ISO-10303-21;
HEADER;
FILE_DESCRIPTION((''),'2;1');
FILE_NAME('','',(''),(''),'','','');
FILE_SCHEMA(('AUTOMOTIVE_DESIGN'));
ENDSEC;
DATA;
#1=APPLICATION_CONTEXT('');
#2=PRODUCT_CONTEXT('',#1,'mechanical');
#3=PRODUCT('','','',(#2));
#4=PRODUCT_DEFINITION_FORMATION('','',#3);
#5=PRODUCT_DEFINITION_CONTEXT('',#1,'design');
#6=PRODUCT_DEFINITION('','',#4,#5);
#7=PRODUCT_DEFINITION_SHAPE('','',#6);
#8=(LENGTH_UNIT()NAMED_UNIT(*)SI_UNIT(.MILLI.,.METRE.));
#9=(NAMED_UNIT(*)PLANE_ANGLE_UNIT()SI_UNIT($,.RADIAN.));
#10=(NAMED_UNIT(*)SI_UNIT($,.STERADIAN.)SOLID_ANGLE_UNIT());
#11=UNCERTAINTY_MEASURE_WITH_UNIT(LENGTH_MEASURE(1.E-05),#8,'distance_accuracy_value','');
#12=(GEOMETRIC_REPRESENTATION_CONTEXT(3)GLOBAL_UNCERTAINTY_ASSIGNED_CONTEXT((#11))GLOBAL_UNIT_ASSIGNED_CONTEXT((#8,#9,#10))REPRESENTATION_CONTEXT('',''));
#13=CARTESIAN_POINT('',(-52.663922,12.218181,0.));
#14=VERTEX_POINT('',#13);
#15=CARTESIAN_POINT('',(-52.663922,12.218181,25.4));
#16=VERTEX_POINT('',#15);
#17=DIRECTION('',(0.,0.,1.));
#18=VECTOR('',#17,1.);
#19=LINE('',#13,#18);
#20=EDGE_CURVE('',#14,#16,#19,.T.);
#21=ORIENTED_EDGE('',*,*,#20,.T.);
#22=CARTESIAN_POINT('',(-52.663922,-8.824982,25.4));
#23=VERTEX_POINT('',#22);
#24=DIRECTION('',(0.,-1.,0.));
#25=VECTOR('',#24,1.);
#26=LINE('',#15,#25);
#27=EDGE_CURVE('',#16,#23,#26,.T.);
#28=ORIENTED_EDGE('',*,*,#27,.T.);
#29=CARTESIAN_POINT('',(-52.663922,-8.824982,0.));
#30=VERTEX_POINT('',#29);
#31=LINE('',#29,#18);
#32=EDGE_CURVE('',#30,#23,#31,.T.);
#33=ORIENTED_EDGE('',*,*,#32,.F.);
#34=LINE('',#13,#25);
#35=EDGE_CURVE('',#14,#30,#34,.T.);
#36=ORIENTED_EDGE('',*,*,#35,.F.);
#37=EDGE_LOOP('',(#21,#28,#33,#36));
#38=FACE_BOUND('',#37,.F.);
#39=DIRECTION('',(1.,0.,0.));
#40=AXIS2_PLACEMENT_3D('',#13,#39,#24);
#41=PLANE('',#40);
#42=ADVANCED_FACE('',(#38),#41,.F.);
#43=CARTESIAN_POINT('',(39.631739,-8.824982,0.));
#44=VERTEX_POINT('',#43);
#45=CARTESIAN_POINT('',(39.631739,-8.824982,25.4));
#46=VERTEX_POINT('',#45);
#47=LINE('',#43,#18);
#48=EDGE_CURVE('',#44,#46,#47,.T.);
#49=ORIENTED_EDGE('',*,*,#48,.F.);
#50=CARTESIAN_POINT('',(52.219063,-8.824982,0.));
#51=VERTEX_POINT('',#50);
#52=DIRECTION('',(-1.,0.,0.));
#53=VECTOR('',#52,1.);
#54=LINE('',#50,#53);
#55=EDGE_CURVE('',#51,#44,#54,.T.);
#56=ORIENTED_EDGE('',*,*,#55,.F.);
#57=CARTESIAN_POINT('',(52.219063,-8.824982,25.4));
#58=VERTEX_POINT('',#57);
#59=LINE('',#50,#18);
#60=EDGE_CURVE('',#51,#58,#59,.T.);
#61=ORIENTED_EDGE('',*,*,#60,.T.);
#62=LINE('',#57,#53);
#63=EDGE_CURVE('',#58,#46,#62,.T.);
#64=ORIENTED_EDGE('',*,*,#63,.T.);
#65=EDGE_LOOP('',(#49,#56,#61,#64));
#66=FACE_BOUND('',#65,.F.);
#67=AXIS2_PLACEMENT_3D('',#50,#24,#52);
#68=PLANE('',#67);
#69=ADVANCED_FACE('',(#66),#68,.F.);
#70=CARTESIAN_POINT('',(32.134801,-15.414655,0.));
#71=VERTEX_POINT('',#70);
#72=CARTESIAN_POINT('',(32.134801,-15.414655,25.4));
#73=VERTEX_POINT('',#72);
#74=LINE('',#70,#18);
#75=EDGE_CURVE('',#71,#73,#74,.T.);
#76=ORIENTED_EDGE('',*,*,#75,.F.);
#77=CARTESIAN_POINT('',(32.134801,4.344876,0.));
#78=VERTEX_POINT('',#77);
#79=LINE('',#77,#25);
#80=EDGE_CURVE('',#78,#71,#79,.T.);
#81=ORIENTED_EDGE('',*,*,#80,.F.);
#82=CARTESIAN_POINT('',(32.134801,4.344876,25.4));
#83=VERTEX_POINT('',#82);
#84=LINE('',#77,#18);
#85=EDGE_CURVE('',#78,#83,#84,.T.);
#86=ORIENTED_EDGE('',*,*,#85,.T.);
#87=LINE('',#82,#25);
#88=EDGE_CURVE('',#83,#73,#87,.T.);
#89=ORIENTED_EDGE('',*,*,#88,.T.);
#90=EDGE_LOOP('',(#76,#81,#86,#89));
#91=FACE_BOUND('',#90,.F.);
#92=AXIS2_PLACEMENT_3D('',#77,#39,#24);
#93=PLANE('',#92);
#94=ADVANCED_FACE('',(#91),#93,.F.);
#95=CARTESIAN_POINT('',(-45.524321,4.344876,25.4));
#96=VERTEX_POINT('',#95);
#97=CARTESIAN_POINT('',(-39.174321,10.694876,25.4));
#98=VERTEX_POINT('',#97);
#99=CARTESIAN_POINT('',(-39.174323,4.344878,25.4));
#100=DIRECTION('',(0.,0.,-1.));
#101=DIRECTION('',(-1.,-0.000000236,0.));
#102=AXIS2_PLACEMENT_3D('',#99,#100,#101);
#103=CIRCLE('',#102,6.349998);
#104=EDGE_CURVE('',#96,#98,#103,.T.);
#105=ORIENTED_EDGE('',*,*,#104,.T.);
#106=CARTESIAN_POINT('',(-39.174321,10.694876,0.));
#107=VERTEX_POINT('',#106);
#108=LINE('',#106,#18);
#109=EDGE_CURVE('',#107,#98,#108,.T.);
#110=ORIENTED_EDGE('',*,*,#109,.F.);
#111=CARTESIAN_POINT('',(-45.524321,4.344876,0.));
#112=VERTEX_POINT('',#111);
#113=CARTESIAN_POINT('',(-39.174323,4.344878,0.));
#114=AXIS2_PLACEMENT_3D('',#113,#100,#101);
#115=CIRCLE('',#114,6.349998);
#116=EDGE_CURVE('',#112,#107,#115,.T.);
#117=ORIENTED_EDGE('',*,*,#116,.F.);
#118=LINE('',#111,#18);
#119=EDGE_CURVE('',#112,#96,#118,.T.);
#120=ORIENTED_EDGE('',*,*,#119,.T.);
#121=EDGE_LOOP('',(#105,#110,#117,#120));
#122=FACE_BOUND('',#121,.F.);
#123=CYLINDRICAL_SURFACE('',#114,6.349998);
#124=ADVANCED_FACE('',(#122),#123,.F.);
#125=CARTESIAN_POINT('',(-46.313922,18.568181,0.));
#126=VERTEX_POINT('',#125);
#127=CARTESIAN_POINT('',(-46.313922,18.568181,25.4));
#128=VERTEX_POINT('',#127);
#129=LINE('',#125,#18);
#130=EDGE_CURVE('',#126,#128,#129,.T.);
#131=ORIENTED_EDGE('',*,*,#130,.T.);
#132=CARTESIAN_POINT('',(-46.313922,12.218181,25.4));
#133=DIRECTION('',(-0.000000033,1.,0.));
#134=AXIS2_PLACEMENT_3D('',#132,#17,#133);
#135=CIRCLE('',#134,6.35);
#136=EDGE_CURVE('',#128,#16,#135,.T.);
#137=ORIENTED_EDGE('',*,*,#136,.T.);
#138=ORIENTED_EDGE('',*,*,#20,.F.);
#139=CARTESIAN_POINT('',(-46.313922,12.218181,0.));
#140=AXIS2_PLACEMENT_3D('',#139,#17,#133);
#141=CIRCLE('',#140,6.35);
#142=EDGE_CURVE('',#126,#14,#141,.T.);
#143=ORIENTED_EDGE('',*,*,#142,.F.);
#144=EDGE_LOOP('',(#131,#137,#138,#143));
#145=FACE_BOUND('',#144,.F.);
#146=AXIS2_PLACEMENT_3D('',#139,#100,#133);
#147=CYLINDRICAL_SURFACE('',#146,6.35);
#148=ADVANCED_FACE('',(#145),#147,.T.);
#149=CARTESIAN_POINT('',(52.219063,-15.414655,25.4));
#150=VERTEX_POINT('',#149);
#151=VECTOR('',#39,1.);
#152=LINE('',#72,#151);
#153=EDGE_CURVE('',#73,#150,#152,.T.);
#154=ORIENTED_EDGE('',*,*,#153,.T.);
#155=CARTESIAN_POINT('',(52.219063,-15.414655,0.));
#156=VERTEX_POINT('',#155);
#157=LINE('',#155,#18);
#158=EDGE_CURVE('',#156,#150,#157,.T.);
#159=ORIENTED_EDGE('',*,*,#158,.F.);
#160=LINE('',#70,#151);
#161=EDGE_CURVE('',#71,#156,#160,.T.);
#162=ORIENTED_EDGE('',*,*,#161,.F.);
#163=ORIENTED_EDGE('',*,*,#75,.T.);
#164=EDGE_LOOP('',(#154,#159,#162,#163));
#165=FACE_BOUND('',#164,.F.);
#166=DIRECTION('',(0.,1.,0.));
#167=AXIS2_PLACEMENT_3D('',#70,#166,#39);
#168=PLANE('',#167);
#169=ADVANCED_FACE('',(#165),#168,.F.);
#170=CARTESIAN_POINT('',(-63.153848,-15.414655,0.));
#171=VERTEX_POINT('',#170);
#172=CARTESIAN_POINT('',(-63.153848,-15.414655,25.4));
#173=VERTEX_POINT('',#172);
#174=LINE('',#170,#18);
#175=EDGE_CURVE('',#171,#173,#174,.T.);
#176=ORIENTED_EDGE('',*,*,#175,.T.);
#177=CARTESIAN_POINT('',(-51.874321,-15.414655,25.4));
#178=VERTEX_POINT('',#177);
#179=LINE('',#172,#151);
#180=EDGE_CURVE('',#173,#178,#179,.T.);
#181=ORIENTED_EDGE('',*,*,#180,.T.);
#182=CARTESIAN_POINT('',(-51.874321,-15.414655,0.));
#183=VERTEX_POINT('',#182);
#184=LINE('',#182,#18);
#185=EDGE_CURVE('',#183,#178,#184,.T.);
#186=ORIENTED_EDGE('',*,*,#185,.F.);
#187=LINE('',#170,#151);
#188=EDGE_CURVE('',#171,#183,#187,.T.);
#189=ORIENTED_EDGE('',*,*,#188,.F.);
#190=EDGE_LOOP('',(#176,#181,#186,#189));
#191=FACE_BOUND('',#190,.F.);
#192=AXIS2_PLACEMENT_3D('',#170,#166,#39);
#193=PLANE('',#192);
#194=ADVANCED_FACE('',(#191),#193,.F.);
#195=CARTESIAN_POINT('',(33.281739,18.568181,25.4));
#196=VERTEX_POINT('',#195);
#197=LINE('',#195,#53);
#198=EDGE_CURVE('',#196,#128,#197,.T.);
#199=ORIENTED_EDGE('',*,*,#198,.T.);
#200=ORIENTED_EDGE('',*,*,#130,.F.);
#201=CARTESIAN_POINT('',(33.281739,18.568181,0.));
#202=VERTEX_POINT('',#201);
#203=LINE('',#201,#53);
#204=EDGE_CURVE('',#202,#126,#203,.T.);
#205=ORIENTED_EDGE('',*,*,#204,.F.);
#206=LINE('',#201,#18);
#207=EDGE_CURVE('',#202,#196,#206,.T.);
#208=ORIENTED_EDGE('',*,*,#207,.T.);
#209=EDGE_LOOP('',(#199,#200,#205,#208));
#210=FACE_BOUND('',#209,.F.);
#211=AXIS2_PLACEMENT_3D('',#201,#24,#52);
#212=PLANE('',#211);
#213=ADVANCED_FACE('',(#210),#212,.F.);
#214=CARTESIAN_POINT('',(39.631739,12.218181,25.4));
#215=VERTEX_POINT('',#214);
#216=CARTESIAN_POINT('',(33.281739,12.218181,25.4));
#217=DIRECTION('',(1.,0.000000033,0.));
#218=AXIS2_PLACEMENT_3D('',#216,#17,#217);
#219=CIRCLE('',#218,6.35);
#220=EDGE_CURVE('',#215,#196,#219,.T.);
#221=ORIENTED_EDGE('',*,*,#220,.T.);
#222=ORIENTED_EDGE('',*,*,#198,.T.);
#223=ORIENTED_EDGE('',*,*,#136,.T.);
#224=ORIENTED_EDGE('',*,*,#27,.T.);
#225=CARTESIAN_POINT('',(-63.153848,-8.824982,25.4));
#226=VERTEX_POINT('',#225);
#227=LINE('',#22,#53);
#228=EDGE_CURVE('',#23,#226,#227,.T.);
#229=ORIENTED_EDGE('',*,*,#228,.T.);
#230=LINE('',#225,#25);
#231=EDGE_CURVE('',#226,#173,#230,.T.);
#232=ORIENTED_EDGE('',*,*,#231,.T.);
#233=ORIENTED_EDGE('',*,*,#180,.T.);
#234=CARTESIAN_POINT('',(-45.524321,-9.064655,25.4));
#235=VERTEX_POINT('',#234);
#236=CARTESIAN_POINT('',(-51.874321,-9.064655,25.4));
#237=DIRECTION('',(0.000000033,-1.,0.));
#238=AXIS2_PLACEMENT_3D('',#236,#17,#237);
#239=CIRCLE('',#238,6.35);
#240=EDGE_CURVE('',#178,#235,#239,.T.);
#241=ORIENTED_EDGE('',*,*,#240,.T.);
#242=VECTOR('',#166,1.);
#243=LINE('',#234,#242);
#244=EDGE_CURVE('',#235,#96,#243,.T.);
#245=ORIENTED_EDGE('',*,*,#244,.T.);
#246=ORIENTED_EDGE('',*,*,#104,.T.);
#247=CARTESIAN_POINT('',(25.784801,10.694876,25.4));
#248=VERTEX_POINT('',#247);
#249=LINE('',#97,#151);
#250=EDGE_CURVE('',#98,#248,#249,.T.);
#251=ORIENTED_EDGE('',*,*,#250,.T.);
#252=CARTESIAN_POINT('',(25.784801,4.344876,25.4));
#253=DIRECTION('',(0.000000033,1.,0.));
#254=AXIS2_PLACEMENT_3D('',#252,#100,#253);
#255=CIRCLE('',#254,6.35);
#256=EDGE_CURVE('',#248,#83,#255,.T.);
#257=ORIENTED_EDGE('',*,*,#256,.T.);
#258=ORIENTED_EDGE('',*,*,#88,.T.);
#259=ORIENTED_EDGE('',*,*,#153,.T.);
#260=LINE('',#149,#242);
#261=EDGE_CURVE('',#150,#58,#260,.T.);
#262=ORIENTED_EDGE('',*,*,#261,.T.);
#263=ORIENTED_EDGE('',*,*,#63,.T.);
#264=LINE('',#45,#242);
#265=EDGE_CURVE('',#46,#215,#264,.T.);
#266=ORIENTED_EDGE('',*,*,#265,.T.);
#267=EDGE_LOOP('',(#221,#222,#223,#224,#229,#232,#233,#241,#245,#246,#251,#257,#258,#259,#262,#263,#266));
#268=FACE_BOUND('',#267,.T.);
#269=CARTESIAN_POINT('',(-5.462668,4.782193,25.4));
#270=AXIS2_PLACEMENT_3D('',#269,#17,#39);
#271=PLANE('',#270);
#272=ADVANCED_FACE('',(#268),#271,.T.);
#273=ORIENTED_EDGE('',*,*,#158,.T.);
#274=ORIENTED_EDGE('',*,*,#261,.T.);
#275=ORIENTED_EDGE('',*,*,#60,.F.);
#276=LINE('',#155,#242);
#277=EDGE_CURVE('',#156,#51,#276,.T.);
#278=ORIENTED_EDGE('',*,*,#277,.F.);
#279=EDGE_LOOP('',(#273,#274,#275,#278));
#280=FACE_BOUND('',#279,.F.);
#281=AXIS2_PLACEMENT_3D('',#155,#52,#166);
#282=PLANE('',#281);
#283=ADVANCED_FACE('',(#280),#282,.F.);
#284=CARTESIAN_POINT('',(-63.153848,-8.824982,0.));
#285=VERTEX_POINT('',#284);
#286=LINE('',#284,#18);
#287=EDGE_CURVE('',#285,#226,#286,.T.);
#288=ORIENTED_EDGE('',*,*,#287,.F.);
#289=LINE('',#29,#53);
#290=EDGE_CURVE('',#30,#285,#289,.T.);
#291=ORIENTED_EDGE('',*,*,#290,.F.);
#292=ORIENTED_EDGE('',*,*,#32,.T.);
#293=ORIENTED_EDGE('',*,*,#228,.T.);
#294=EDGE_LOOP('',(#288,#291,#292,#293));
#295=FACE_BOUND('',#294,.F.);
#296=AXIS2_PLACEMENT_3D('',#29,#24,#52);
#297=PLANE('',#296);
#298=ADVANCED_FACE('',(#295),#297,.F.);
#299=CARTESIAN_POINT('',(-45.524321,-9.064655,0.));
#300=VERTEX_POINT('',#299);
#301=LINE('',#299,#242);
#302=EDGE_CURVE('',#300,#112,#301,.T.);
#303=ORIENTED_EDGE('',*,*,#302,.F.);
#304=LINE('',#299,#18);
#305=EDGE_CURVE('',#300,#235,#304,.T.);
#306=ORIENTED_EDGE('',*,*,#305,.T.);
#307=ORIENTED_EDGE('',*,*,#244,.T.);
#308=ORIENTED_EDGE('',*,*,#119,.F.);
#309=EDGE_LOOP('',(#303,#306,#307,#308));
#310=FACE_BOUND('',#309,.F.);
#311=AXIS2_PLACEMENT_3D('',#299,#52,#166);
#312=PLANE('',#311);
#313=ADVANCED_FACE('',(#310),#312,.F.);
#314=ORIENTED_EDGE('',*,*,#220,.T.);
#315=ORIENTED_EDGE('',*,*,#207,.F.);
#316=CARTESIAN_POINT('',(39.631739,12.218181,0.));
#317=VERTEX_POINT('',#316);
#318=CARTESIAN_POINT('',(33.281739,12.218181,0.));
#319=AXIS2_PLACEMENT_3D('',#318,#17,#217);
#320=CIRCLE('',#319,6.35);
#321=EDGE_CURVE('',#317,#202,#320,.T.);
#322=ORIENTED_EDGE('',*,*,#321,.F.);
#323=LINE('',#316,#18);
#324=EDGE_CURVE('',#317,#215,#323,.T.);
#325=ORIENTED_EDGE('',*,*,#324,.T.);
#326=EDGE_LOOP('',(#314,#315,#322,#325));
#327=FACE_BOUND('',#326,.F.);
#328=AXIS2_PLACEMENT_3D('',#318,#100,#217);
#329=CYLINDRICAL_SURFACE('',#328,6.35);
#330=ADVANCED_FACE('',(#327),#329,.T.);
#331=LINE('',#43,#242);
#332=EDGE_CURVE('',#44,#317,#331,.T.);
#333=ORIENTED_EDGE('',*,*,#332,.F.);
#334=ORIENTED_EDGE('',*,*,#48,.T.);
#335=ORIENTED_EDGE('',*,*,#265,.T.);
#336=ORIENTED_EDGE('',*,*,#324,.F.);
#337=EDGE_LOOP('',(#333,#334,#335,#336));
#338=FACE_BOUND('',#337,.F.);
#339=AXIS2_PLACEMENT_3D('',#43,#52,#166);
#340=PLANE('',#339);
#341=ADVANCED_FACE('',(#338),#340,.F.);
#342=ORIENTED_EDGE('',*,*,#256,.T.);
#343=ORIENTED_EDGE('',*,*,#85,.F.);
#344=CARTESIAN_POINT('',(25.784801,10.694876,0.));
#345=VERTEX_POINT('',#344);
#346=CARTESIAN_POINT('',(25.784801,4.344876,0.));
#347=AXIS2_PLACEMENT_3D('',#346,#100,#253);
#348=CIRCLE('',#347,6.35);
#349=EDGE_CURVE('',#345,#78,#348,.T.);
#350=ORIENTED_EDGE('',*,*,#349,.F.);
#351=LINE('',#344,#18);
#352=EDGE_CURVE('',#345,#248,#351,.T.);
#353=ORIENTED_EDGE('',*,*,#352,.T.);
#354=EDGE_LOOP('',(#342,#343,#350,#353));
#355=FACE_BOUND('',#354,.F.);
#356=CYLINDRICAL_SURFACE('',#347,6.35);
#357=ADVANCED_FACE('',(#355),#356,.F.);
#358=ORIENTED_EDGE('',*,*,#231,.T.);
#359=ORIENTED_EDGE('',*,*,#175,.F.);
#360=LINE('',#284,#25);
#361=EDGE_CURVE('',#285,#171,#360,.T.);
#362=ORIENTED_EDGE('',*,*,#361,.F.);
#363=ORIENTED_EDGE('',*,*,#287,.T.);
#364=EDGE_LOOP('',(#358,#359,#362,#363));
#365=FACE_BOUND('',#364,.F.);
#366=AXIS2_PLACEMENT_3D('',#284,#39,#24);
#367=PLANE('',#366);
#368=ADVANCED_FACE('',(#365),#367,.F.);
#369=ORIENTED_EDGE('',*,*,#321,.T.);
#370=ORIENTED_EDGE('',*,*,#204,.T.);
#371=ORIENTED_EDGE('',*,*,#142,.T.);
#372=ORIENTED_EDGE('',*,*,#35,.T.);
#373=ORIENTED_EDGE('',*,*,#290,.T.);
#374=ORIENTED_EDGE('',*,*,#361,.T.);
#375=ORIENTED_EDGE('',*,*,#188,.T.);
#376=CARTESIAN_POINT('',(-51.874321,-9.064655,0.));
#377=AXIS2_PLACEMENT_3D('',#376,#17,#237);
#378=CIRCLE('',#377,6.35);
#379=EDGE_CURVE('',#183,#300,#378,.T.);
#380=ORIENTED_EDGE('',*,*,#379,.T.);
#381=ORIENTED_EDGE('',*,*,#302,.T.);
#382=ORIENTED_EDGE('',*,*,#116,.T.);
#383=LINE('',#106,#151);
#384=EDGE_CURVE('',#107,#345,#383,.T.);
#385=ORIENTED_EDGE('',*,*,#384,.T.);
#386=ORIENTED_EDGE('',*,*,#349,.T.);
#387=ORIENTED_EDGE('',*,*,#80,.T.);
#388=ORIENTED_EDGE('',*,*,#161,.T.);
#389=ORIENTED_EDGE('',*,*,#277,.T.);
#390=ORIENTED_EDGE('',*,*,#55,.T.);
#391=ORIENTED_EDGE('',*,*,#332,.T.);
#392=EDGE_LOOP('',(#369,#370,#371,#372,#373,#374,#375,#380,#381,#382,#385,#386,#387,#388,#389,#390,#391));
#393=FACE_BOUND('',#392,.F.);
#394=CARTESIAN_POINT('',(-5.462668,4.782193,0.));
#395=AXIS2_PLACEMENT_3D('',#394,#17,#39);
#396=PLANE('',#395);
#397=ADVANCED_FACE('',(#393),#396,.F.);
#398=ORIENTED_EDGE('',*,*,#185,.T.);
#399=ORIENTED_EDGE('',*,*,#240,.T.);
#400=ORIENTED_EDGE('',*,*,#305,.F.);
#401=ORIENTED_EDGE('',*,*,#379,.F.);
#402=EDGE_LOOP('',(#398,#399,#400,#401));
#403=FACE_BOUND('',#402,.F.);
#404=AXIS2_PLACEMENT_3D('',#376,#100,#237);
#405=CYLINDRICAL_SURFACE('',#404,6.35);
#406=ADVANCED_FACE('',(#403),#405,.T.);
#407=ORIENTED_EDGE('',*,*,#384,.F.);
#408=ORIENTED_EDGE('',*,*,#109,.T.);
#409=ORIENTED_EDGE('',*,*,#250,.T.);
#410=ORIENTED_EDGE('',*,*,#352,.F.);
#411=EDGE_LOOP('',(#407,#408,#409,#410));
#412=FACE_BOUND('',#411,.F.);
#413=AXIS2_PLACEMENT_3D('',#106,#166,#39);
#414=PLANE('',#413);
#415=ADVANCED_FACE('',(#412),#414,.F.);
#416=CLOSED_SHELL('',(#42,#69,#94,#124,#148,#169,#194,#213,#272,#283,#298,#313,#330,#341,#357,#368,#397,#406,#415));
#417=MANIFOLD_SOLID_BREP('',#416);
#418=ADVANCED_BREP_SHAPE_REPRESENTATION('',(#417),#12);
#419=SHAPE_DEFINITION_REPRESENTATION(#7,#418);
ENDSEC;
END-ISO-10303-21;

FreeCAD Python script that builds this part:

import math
import FreeCAD as App
import Part
import Sketcher
Q = App.Units.Quantity

doc = App.newDocument("Part")
body = doc.addObject("PartDesign::Body", "Body")

sketch1 = doc.addObject("Sketcher::SketchObject", "Sketch")
body.addObject(sketch1)
sketch1.AttachmentSupport = (doc.XY_Plane, [""])
sketch1.MapMode = "FlatFace"
sketch1.addGeometry([
    Part.LineSegment(App.Vector(-63, -9, 0), App.Vector(-63, -15, 0)),
    Part.LineSegment(App.Vector(-63, -15, 0), App.Vector(-52, -15, 0)),
    Part.ArcOfCircle(Part.Circle(App.Vector(-52, -9, 0), App.Vector(0, 0, 1), 6), math.radians(-90), math.radians(0)),
    Part.LineSegment(App.Vector(-46, -9, 0), App.Vector(-46, 4, 0)),
    Part.ArcOfCircle(Part.Circle(App.Vector(-39, 4, 0), App.Vector(0, 0, 1), 6), math.radians(90), math.radians(180)),
    Part.LineSegment(App.Vector(-39, 11, 0), App.Vector(26, 11, 0)),
    Part.ArcOfCircle(Part.Circle(App.Vector(26, 4, 0), App.Vector(0, 0, 1), 6), math.radians(0), math.radians(90)),
    Part.LineSegment(App.Vector(32, 4, 0), App.Vector(32, -15, 0)),
    Part.LineSegment(App.Vector(32, -15, 0), App.Vector(52, -15, 0)),
    Part.LineSegment(App.Vector(52, -15, 0), App.Vector(52, -9, 0)),
    Part.LineSegment(App.Vector(52, -9, 0), App.Vector(40, -9, 0)),
    Part.LineSegment(App.Vector(40, -9, 0), App.Vector(40, 12, 0)),
    Part.ArcOfCircle(Part.Circle(App.Vector(33, 12, 0), App.Vector(0, 0, 1), 6), math.radians(0), math.radians(90)),
    Part.LineSegment(App.Vector(33, 19, 0), App.Vector(-46, 19, 0)),
    Part.ArcOfCircle(Part.Circle(App.Vector(-46, 12, 0), App.Vector(0, 0, 1), 6), math.radians(90), math.radians(180)),
    Part.LineSegment(App.Vector(-53, 12, 0), App.Vector(-53, -9, 0)),
    Part.LineSegment(App.Vector(-53, -9, 0), App.Vector(-63, -9, 0)),
], False)
sketch1.addConstraint([
    Sketcher.Constraint("Coincident", 0, 2, 1, 1),
    Sketcher.Constraint("Tangent", 1, 2, 2, 1),
    Sketcher.Constraint("Tangent", 2, 2, 3, 1),
    Sketcher.Constraint("Tangent", 3, 2, 4, 2),
    Sketcher.Constraint("Tangent", 4, 1, 5, 1),
    Sketcher.Constraint("Tangent", 5, 2, 6, 2),
    Sketcher.Constraint("Tangent", 6, 1, 7, 1),
    Sketcher.Constraint("Coincident", 7, 2, 8, 1),
    Sketcher.Constraint("Coincident", 8, 2, 9, 1),
    Sketcher.Constraint("Coincident", 9, 2, 10, 1),
    Sketcher.Constraint("Coincident", 10, 2, 11, 1),
    Sketcher.Constraint("Tangent", 11, 2, 12, 1),
    Sketcher.Constraint("Tangent", 12, 2, 13, 1),
    Sketcher.Constraint("Tangent", 13, 2, 14, 1),
    Sketcher.Constraint("Tangent", 14, 2, 15, 1),
    Sketcher.Constraint("Coincident", 15, 2, 16, 1),
    Sketcher.Constraint("Coincident", 16, 2, 0, 1),
    Sketcher.Constraint("Vertical", 0),
    Sketcher.Constraint("Horizontal", 1),
    Sketcher.Constraint("Vertical", 3),
    Sketcher.Constraint("Horizontal", 5),
    Sketcher.Constraint("Vertical", 7),
    Sketcher.Constraint("Horizontal", 8),
    Sketcher.Constraint("Vertical", 9),
    Sketcher.Constraint("Horizontal", 10),
    Sketcher.Constraint("Vertical", 11),
    Sketcher.Constraint("Horizontal", 13),
    Sketcher.Constraint("Vertical", 15),
    Sketcher.Constraint("Horizontal", 16),
    Sketcher.Constraint("Equal", 2, 4),
    Sketcher.Constraint("Equal", 4, 6),
    Sketcher.Constraint("Equal", 6, 12),
    Sketcher.Constraint("Equal", 12, 14),
    Sketcher.Constraint("Horizontal", 1, 2, 7, 2),
    Sketcher.Constraint("Horizontal", 10, 2, 15, 2),
    Sketcher.Constraint("Radius", 2, Q("0.25 in")),
    Sketcher.Constraint("DistanceX", 8, 1, 8, 2, Q("20.084262 mm")),
    Sketcher.Constraint("DistanceX", 13, 2, 13, 1, Q("79.595661 mm")),
    Sketcher.Constraint("DistanceY", 3, 1, 3, 2, Q("13.409531 mm")),
    Sketcher.Constraint("DistanceX", -1, 1, 6, 3, Q("25.784801 mm")),
    Sketcher.Constraint("DistanceX", 14, 3, 4, 3, Q("7.139599 mm")),
    Sketcher.Constraint("DistanceX", 1, 1, 1, 2, Q("11.279527 mm")),
    Sketcher.Constraint("DistanceX", 5, 1, 5, 2, Q("64.959122 mm")),
    Sketcher.Constraint("DistanceY", 0, 2, 0, 1, Q("6.589673 mm")),
    Sketcher.Constraint("DistanceY", 11, 1, 11, 2, Q("21.043163 mm")),
    Sketcher.Constraint("DistanceY", -1, 1, 12, 3, Q("12.218181 mm")),
])
pad1 = doc.addObject("PartDesign::Pad", "Pad")
body.addObject(pad1)
pad1.Profile = sketch1
pad1.Length = Q("1 in")

doc.recompute()
